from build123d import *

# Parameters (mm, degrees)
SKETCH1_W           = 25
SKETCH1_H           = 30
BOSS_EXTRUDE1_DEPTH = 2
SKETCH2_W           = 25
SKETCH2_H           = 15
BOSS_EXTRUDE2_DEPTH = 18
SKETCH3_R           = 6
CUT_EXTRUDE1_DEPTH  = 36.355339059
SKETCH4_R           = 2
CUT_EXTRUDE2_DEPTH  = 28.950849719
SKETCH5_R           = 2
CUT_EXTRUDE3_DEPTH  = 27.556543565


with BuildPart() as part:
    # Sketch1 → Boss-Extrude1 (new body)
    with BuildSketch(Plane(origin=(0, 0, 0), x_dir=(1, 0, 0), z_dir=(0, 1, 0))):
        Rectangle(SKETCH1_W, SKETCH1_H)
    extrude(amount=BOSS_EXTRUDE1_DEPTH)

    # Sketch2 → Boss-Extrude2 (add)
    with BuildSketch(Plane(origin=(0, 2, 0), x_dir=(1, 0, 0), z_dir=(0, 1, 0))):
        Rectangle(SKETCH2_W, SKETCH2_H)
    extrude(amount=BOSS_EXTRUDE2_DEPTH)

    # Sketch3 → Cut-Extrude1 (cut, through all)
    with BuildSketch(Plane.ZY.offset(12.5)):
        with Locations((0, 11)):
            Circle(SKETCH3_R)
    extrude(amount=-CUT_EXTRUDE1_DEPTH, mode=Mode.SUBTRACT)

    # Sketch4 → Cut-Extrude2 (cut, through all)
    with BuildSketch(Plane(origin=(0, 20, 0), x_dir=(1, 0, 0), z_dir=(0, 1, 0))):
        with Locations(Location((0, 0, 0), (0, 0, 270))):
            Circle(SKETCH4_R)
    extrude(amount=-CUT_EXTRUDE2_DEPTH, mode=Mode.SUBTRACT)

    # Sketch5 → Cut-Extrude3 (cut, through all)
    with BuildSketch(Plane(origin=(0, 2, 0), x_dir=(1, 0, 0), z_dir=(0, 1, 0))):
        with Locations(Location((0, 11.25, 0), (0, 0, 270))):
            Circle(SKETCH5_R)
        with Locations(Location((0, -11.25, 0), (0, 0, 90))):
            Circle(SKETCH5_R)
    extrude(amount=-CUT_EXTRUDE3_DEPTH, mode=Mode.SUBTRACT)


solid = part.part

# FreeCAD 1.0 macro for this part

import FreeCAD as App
import Part
import Sketcher
Q = App.Units.Quantity

doc = App.newDocument("Part")
body = doc.addObject("PartDesign::Body", "Body")

sketch1 = doc.addObject("Sketcher::SketchObject", "Sketch")
body.addObject(sketch1)
sketch1.AttachmentSupport = (doc.XZ_Plane, [""])
sketch1.MapMode = "FlatFace"
sketch1.addGeometry(Part.LineSegment(App.Vector(-12, -15, 0), App.Vector(-12, 15, 0)), False)
sketch1.addGeometry(Part.LineSegment(App.Vector(-12, 15, 0), App.Vector(12, 15, 0)), False)
sketch1.addGeometry(Part.LineSegment(App.Vector(12, 15, 0), App.Vector(12, -15, 0)), False)
sketch1.addGeometry(Part.LineSegment(App.Vector(12, -15, 0), App.Vector(-12, -15, 0)), False)
sketch1.addConstraint(Sketcher.Constraint("Coincident", 0, 2, 1, 1))
sketch1.addConstraint(Sketcher.Constraint("Coincident", 1, 2, 2, 1))
sketch1.addConstraint(Sketcher.Constraint("Coincident", 2, 2, 3, 1))
sketch1.addConstraint(Sketcher.Constraint("Coincident", 3, 2, 0, 1))
sketch1.addConstraint(Sketcher.Constraint("Vertical", 0))
sketch1.addConstraint(Sketcher.Constraint("Horizontal", 1))
sketch1.addConstraint(Sketcher.Constraint("Vertical", 2))
sketch1.addConstraint(Sketcher.Constraint("Horizontal", 3))
sketch1.addConstraint(Sketcher.Constraint("Symmetric", 0, 2, 2, 2, -1, 1))
sketch1.addConstraint(Sketcher.Constraint("DistanceX", 1, 1, 1, 2, Q("25 mm")))
sketch1.addConstraint(Sketcher.Constraint("DistanceY", 0, 1, 0, 2, Q("30 mm")))
pad1 = doc.addObject("PartDesign::Pad", "Pad")
body.addObject(pad1)
pad1.Profile = sketch1
pad1.Length = 2
pad1.Reversed = True

sketch2 = doc.addObject("Sketcher::SketchObject", "Sketch001")
body.addObject(sketch2)
sketch2.AttachmentSupport = (doc.XZ_Plane, [""])
sketch2.MapMode = "FlatFace"
sketch2.AttachmentOffset = App.Placement(App.Vector(0, 0, -2), App.Rotation())
sketch2.addGeometry(Part.LineSegment(App.Vector(-12, -8, 0), App.Vector(-12, 8, 0)), False)
sketch2.addGeometry(Part.LineSegment(App.Vector(-12, 8, 0), App.Vector(12, 8, 0)), False)
sketch2.addGeometry(Part.LineSegment(App.Vector(12, 8, 0), App.Vector(12, -8, 0)), False)
sketch2.addGeometry(Part.LineSegment(App.Vector(12, -8, 0), App.Vector(-12, -8, 0)), False)
sketch2.addConstraint(Sketcher.Constraint("Coincident", 0, 2, 1, 1))
sketch2.addConstraint(Sketcher.Constraint("Coincident", 1, 2, 2, 1))
sketch2.addConstraint(Sketcher.Constraint("Coincident", 2, 2, 3, 1))
sketch2.addConstraint(Sketcher.Constraint("Coincident", 3, 2, 0, 1))
sketch2.addConstraint(Sketcher.Constraint("Vertical", 0))
sketch2.addConstraint(Sketcher.Constraint("Horizontal", 1))
sketch2.addConstraint(Sketcher.Constraint("Vertical", 2))
sketch2.addConstraint(Sketcher.Constraint("Horizontal", 3))
sketch2.addConstraint(Sketcher.Constraint("Symmetric", 0, 2, 2, 2, -1, 1))
sketch2.addConstraint(Sketcher.Constraint("DistanceX", 1, 1, 1, 2, Q("25 mm")))
sketch2.addConstraint(Sketcher.Constraint("DistanceY", 0, 1, 0, 2, Q("15 mm")))
pad2 = doc.addObject("PartDesign::Pad", "Pad001")
body.addObject(pad2)
pad2.Profile = sketch2
pad2.Length = 18
pad2.Reversed = True

sketch3 = doc.addObject("Sketcher::SketchObject", "Sketch002")
body.addObject(sketch3)
sketch3.AttachmentSupport = (doc.YZ_Plane, [""])
sketch3.MapMode = "FlatFace"
sketch3.AttachmentOffset = App.Placement(App.Vector(0, 0, -12.5), App.Rotation())
sketch3.addGeometry(Part.Circle(App.Vector(11, 0, 0), App.Vector(0, 0, 1), 6), False)
sketch3.addConstraint(Sketcher.Constraint("PointOnObject", 0, 3, -1))
sketch3.addConstraint(Sketcher.Constraint("Diameter", 0, Q("12 mm")))
sketch3.addConstraint(Sketcher.Constraint("DistanceX", -1, 1, 0, 3, Q("11 mm")))
pocket1 = doc.addObject("PartDesign::Pocket", "Pocket")
body.addObject(pocket1)
pocket1.Profile = sketch3
pocket1.Type = "ThroughAll"
pocket1.Reversed = True

sketch4 = doc.addObject("Sketcher::SketchObject", "Sketch003")
body.addObject(sketch4)
sketch4.AttachmentSupport = (doc.XZ_Plane, [""])
sketch4.MapMode = "FlatFace"
sketch4.AttachmentOffset = App.Placement(App.Vector(0, 0, -20), App.Rotation())
sketch4.addGeometry(Part.Circle(App.Vector(0, 0, 0), App.Vector(0, 0, 1), 2), False)
sketch4.addConstraint(Sketcher.Constraint("Coincident", 0, 3, -1, 1))
sketch4.addConstraint(Sketcher.Constraint("Diameter", 0, Q("4 mm")))
pocket2 = doc.addObject("PartDesign::Pocket", "Pocket001")
body.addObject(pocket2)
pocket2.Profile = sketch4
pocket2.Type = "ThroughAll"
pocket2.Reversed = True

sketch5 = doc.addObject("Sketcher::SketchObject", "Sketch004")
body.addObject(sketch5)
sketch5.AttachmentSupport = (doc.XZ_Plane, [""])
sketch5.MapMode = "FlatFace"
sketch5.AttachmentOffset = App.Placement(App.Vector(0, 0, -2), App.Rotation())
sketch5.addGeometry(Part.Circle(App.Vector(0, -11.2, 0), App.Vector(0, 0, 1), 2), False)
sketch5.addGeometry(Part.Circle(App.Vector(0, 11.2, 0), App.Vector(0, 0, 1), 2), False)
sketch5.addConstraint(Sketcher.Constraint("Equal", 0, 1))
sketch5.addConstraint(Sketcher.Constraint("Symmetric", 0, 3, 1, 3, -1, 1))
sketch5.addConstraint(Sketcher.Constraint("PointOnObject", 0, 3, -2))
sketch5.addConstraint(Sketcher.Constraint("Diameter", 0, Q("4 mm")))
sketch5.addConstraint(Sketcher.Constraint("DistanceY", 0, 3, 1, 3, Q("22.5 mm")))
pocket3 = doc.addObject("PartDesign::Pocket", "Pocket002")
body.addObject(pocket3)
pocket3.Profile = sketch5
pocket3.Type = "ThroughAll"
pocket3.Reversed = True

doc.recompute()
